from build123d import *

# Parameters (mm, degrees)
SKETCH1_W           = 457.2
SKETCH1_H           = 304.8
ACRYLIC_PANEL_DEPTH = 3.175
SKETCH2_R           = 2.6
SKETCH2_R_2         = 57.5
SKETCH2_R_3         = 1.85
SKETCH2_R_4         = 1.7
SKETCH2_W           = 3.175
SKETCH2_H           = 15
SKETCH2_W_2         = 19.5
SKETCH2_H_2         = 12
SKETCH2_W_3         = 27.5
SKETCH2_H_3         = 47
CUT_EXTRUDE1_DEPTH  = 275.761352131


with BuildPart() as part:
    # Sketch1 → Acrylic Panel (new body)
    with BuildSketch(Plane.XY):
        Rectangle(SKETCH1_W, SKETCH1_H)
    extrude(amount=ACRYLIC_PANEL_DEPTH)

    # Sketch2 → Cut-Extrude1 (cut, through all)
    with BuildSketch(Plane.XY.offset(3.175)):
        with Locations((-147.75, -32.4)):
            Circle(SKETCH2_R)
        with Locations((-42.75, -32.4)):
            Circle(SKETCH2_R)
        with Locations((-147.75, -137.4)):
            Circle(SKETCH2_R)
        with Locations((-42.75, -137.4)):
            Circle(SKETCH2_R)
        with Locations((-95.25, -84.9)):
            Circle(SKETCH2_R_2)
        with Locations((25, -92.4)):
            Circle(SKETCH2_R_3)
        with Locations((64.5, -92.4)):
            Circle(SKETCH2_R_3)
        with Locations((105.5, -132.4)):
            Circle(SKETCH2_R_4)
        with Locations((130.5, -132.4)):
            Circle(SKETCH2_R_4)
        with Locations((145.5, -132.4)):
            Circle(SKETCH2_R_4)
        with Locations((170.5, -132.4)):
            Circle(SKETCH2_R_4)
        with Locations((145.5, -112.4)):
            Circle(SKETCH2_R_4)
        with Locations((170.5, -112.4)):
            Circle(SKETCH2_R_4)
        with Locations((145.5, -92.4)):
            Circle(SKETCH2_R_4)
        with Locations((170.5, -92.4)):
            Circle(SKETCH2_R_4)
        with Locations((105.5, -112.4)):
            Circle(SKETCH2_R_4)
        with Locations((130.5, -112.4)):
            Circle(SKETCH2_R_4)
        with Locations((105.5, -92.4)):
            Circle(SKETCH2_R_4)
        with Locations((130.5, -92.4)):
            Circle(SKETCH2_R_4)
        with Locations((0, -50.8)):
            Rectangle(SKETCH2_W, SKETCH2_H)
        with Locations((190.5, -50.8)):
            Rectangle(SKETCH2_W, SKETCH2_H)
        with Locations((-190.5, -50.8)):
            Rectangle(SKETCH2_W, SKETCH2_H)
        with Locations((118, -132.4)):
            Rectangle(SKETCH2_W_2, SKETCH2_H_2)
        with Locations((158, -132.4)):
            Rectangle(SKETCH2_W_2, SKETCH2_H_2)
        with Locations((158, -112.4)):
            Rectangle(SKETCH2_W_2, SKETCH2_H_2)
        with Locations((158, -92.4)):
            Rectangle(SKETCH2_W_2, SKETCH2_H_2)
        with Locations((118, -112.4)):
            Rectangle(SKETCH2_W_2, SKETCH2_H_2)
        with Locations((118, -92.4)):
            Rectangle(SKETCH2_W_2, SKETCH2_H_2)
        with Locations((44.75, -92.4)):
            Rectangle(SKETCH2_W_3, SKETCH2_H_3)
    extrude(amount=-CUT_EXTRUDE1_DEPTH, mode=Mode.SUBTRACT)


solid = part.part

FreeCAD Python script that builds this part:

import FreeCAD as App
import Part
import Sketcher
from FreeCAD import Vector
Q = App.Units.Quantity

doc = App.newDocument("Part")
body = doc.addObject("PartDesign::Body", "Body")

sketch1 = body.newObject("Sketcher::SketchObject", "Sketch")
sketch1.AttachmentSupport = (doc.getObject("XY_Plane"), [""])
sketch1.MapMode = "FlatFace"
sketch1.addGeometry(Part.LineSegment(Vector(-229, 152, 0), Vector(-229, -152, 0)), False)
sketch1.addGeometry(Part.LineSegment(Vector(-229, -152, 0), Vector(229, -152, 0)), False)
sketch1.addGeometry(Part.LineSegment(Vector(229, -152, 0), Vector(229, 152, 0)), False)
sketch1.addGeometry(Part.LineSegment(Vector(229, 152, 0), Vector(-229, 152, 0)), False)
sketch1.addConstraint(Sketcher.Constraint("Coincident", 0, 2, 1, 1))
sketch1.addConstraint(Sketcher.Constraint("Coincident", 1, 2, 2, 1))
sketch1.addConstraint(Sketcher.Constraint("Coincident", 2, 2, 3, 1))
sketch1.addConstraint(Sketcher.Constraint("Coincident", 3, 2, 0, 1))
sketch1.addConstraint(Sketcher.Constraint("Vertical", 0))
sketch1.addConstraint(Sketcher.Constraint("Horizontal", 1))
sketch1.addConstraint(Sketcher.Constraint("Vertical", 2))
sketch1.addConstraint(Sketcher.Constraint("Horizontal", 3))
sketch1.addConstraint(Sketcher.Constraint("Symmetric", 0, 2, 2, 2, -1, 1))
sketch1.addConstraint(Sketcher.Constraint("DistanceX", 1, 1, 1, 2, Q("457.2 mm")))
sketch1.addConstraint(Sketcher.Constraint("DistanceY", 0, 2, 0, 1, Q("304.8 mm")))
pad1 = body.newObject("PartDesign::Pad", "Pad")
pad1.Profile = sketch1
pad1.Length = 3.175

sketch2 = body.newObject("Sketcher::SketchObject", "Sketch001")
sketch2.AttachmentSupport = (doc.getObject("XY_Plane"), [""])
sketch2.MapMode = "FlatFace"
sketch2.AttachmentOffset = App.Placement(Vector(0, 0, 3.175), App.Rotation())
sketch2.addGeometry(Part.Circle(Vector(-147.8, -32.4, 0), Vector(0, 0, 1), 2.6), False)
sketch2.addGeometry(Part.Circle(Vector(-42.8, -32.4, 0), Vector(0, 0, 1), 2.6), False)
sketch2.addGeometry(Part.Circle(Vector(-147.8, -137.4, 0), Vector(0, 0, 1), 2.6), False)
sketch2.addGeometry(Part.Circle(Vector(-42.8, -137.4, 0), Vector(0, 0, 1), 2.6), False)
sketch2.addGeometry(Part.Circle(Vector(-95.2, -84.9, 0), Vector(0, 0, 1), 57.5), False)
sketch2.addGeometry(Part.Circle(Vector(25, -92.4, 0), Vector(0, 0, 1), 1.9), False)
sketch2.addGeometry(Part.Circle(Vector(64.5, -92.4, 0), Vector(0, 0, 1), 1.9), False)
sketch2.addGeometry(Part.Circle(Vector(105.5, -132.4, 0), Vector(0, 0, 1), 1.7), False)
sketch2.addGeometry(Part.Circle(Vector(130.5, -132.4, 0), Vector(0, 0, 1), 1.7), False)
sketch2.addGeometry(Part.Circle(Vector(145.5, -132.4, 0), Vector(0, 0, 1), 1.7), False)
sketch2.addGeometry(Part.Circle(Vector(170.5, -132.4, 0), Vector(0, 0, 1), 1.7), False)
sketch2.addGeometry(Part.Circle(Vector(145.5, -112.4, 0), Vector(0, 0, 1), 1.7), False)
sketch2.addGeometry(Part.Circle(Vector(170.5, -112.4, 0), Vector(0, 0, 1), 1.7), False)
sketch2.addGeometry(Part.Circle(Vector(145.5, -92.4, 0), Vector(0, 0, 1), 1.7), False)
sketch2.addGeometry(Part.Circle(Vector(170.5, -92.4, 0), Vector(0, 0, 1), 1.7), False)
sketch2.addGeometry(Part.Circle(Vector(105.5, -112.4, 0), Vector(0, 0, 1), 1.7), False)
sketch2.addGeometry(Part.Circle(Vector(130.5, -112.4, 0), Vector(0, 0, 1), 1.7), False)
sketch2.addGeometry(Part.Circle(Vector(105.5, -92.4, 0), Vector(0, 0, 1), 1.7), False)
sketch2.addGeometry(Part.Circle(Vector(130.5, -92.4, 0), Vector(0, 0, 1), 1.7), False)
sketch2.addGeometry(Part.LineSegment(Vector(-1.6, -43.3, 0), Vector(-1.6, -58.3, 0)), False)
sketch2.addGeometry(Part.LineSegment(Vector(-1.6, -58.3, 0), Vector(1.6, -58.3, 0)), False)
sketch2.addGeometry(Part.LineSegment(Vector(1.6, -58.3, 0), Vector(1.6, -43.3, 0)), False)
sketch2.addGeometry(Part.LineSegment(Vector(1.6, -43.3, 0), Vector(-1.6, -43.3, 0)), False)
sketch2.addGeometry(Part.LineSegment(Vector(188.9, -43.3, 0), Vector(188.9, -58.3, 0)), False)
sketch2.addGeometry(Part.LineSegment(Vector(188.9, -58.3, 0), Vector(192.1, -58.3, 0)), False)
sketch2.addGeometry(Part.LineSegment(Vector(192.1, -58.3, 0), Vector(192.1, -43.3, 0)), False)
sketch2.addGeometry(Part.LineSegment(Vector(192.1, -43.3, 0), Vector(188.9, -43.3, 0)), False)
sketch2.addGeometry(Part.LineSegment(Vector(-192.1, -43.3, 0), Vector(-192.1, -58.3, 0)), False)
sketch2.addGeometry(Part.LineSegment(Vector(-192.1, -58.3, 0), Vector(-188.9, -58.3, 0)), False)
sketch2.addGeometry(Part.LineSegment(Vector(-188.9, -58.3, 0), Vector(-188.9, -43.3, 0)), False)
sketch2.addGeometry(Part.LineSegment(Vector(-188.9, -43.3, 0), Vector(-192.1, -43.3, 0)), False)
sketch2.addGeometry(Part.LineSegment(Vector(108.2, -126.4, 0), Vector(108.2, -138.4, 0)), False)
sketch2.addGeometry(Part.LineSegment(Vector(108.2, -138.4, 0), Vector(127.8, -138.4, 0)), False)
sketch2.addGeometry(Part.LineSegment(Vector(127.8, -138.4, 0), Vector(127.8, -126.4, 0)), False)
sketch2.addGeometry(Part.LineSegment(Vector(127.8, -126.4, 0), Vector(108.2, -126.4, 0)), False)
sketch2.addGeometry(Part.LineSegment(Vector(148.2, -126.4, 0), Vector(148.2, -138.4, 0)), False)
sketch2.addGeometry(Part.LineSegment(Vector(148.2, -138.4, 0), Vector(167.8, -138.4, 0)), False)
sketch2.addGeometry(Part.LineSegment(Vector(167.8, -138.4, 0), Vector(167.8, -126.4, 0)), False)
sketch2.addGeometry(Part.LineSegment(Vector(167.8, -126.4, 0), Vector(148.2, -126.4, 0)), False)
sketch2.addGeometry(Part.LineSegment(Vector(148.2, -106.4, 0), Vector(148.2, -118.4, 0)), False)
sketch2.addGeometry(Part.LineSegment(Vector(148.2, -118.4, 0), Vector(167.8, -118.4, 0)), False)
sketch2.addGeometry(Part.LineSegment(Vector(167.8, -118.4, 0), Vector(167.8, -106.4, 0)), False)
sketch2.addGeometry(Part.LineSegment(Vector(167.8, -106.4, 0), Vector(148.2, -106.4, 0)), False)
sketch2.addGeometry(Part.LineSegment(Vector(148.2, -86.4, 0), Vector(148.2, -98.4, 0)), False)
sketch2.addGeometry(Part.LineSegment(Vector(148.2, -98.4, 0), Vector(167.8, -98.4, 0)), False)
sketch2.addGeometry(Part.LineSegment(Vector(167.8, -98.4, 0), Vector(167.8, -86.4, 0)), False)
sketch2.addGeometry(Part.LineSegment(Vector(167.8, -86.4, 0), Vector(148.2, -86.4, 0)), False)
sketch2.addGeometry(Part.LineSegment(Vector(108.2, -106.4, 0), Vector(108.2, -118.4, 0)), False)
sketch2.addGeometry(Part.LineSegment(Vector(108.2, -118.4, 0), Vector(127.8, -118.4, 0)), False)
sketch2.addGeometry(Part.LineSegment(Vector(127.8, -118.4, 0), Vector(127.8, -106.4, 0)), False)
sketch2.addGeometry(Part.LineSegment(Vector(127.8, -106.4, 0), Vector(108.2, -106.4, 0)), False)
sketch2.addGeometry(Part.LineSegment(Vector(108.2, -86.4, 0), Vector(108.2, -98.4, 0)), False)
sketch2.addGeometry(Part.LineSegment(Vector(108.2, -98.4, 0), Vector(127.8, -98.4, 0)), False)
sketch2.addGeometry(Part.LineSegment(Vector(127.8, -98.4, 0), Vector(127.8, -86.4, 0)), False)
sketch2.addGeometry(Part.LineSegment(Vector(127.8, -86.4, 0), Vector(108.2, -86.4, 0)), False)
sketch2.addGeometry(Part.LineSegment(Vector(31, -68.9, 0), Vector(31, -115.9, 0)), False)
sketch2.addGeometry(Part.LineSegment(Vector(31, -115.9, 0), Vector(58.5, -115.9, 0)), False)
sketch2.addGeometry(Part.LineSegment(Vector(58.5, -115.9, 0), Vector(58.5, -68.9, 0)), False)
sketch2.addGeometry(Part.LineSegment(Vector(58.5, -68.9, 0), Vector(31, -68.9, 0)), False)
sketch2.addConstraint(Sketcher.Constraint("Coincident", 19, 2, 20, 1))
sketch2.addConstraint(Sketcher.Constraint("Coincident", 20, 2, 21, 1))
sketch2.addConstraint(Sketcher.Constraint("Coincident", 21, 2, 22, 1))
sketch2.addConstraint(Sketcher.Constraint("Coincident", 22, 2, 19, 1))
sketch2.addConstraint(Sketcher.Constraint("Coincident", 23, 2, 24, 1))
sketch2.addConstraint(Sketcher.Constraint("Coincident", 24, 2, 25, 1))
sketch2.addConstraint(Sketcher.Constraint("Coincident", 25, 2, 26, 1))
sketch2.addConstraint(Sketcher.Constraint("Coincident", 26, 2, 23, 1))
sketch2.addConstraint(Sketcher.Constraint("Coincident", 27, 2, 28, 1))
sketch2.addConstraint(Sketcher.Constraint("Coincident", 28, 2, 29, 1))
sketch2.addConstraint(Sketcher.Constraint("Coincident", 29, 2, 30, 1))
sketch2.addConstraint(Sketcher.Constraint("Coincident", 30, 2, 27, 1))
sketch2.addConstraint(Sketcher.Constraint("Coincident", 31, 2, 32, 1))
sketch2.addConstraint(Sketcher.Constraint("Coincident", 32, 2, 33, 1))
sketch2.addConstraint(Sketcher.Constraint("Coincident", 33, 2, 34, 1))
sketch2.addConstraint(Sketcher.Constraint("Coincident", 34, 2, 31, 1))
sketch2.addConstraint(Sketcher.Constraint("Coincident", 35, 2, 36, 1))
sketch2.addConstraint(Sketcher.Constraint("Coincident", 36, 2, 37, 1))
sketch2.addConstraint(Sketcher.Constraint("Coincident", 37, 2, 38, 1))
sketch2.addConstraint(Sketcher.Constraint("Coincident", 38, 2, 35, 1))
sketch2.addConstraint(Sketcher.Constraint("Coincident", 39, 2, 40, 1))
sketch2.addConstraint(Sketcher.Constraint("Coincident", 40, 2, 41, 1))
sketch2.addConstraint(Sketcher.Constraint("Coincident", 41, 2, 42, 1))
sketch2.addConstraint(Sketcher.Constraint("Coincident", 42, 2, 39, 1))
sketch2.addConstraint(Sketcher.Constraint("Coincident", 43, 2, 44, 1))
sketch2.addConstraint(Sketcher.Constraint("Coincident", 44, 2, 45, 1))
sketch2.addConstraint(Sketcher.Constraint("Coincident", 45, 2, 46, 1))
sketch2.addConstraint(Sketcher.Constraint("Coincident", 46, 2, 43, 1))
sketch2.addConstraint(Sketcher.Constraint("Coincident", 47, 2, 48, 1))
sketch2.addConstraint(Sketcher.Constraint("Coincident", 48, 2, 49, 1))
sketch2.addConstraint(Sketcher.Constraint("Coincident", 49, 2, 50, 1))
sketch2.addConstraint(Sketcher.Constraint("Coincident", 50, 2, 47, 1))
sketch2.addConstraint(Sketcher.Constraint("Coincident", 51, 2, 52, 1))
sketch2.addConstraint(Sketcher.Constraint("Coincident", 52, 2, 53, 1))
sketch2.addConstraint(Sketcher.Constraint("Coincident", 53, 2, 54, 1))
sketch2.addConstraint(Sketcher.Constraint("Coincident", 54, 2, 51, 1))
sketch2.addConstraint(Sketcher.Constraint("Coincident", 55, 2, 56, 1))
sketch2.addConstraint(Sketcher.Constraint("Coincident", 56, 2, 57, 1))
sketch2.addConstraint(Sketcher.Constraint("Coincident", 57, 2, 58, 1))
sketch2.addConstraint(Sketcher.Constraint("Coincident", 58, 2, 55, 1))
sketch2.addConstraint(Sketcher.Constraint("Vertical", 19))
sketch2.addConstraint(Sketcher.Constraint("Horizontal", 20))
sketch2.addConstraint(Sketcher.Constraint("Vertical", 21))
sketch2.addConstraint(Sketcher.Constraint("Horizontal", 22))
sketch2.addConstraint(Sketcher.Constraint("Vertical", 23))
sketch2.addConstraint(Sketcher.Constraint("Horizontal", 24))
sketch2.addConstraint(Sketcher.Constraint("Vertical", 25))
sketch2.addConstraint(Sketcher.Constraint("Horizontal", 26))
sketch2.addConstraint(Sketcher.Constraint("Vertical", 27))
sketch2.addConstraint(Sketcher.Constraint("Horizontal", 28))
sketch2.addConstraint(Sketcher.Constraint("Vertical", 29))
sketch2.addConstraint(Sketcher.Constraint("Horizontal", 30))
sketch2.addConstraint(Sketcher.Constraint("Vertical", 31))
sketch2.addConstraint(Sketcher.Constraint("Horizontal", 32))
sketch2.addConstraint(Sketcher.Constraint("Vertical", 33))
sketch2.addConstraint(Sketcher.Constraint("Horizontal", 34))
sketch2.addConstraint(Sketcher.Constraint("Vertical", 35))
sketch2.addConstraint(Sketcher.Constraint("Horizontal", 36))
sketch2.addConstraint(Sketcher.Constraint("Vertical", 37))
sketch2.addConstraint(Sketcher.Constraint("Horizontal", 38))
sketch2.addConstraint(Sketcher.Constraint("Vertical", 39))
sketch2.addConstraint(Sketcher.Constraint("Horizontal", 40))
sketch2.addConstraint(Sketcher.Constraint("Vertical", 41))
sketch2.addConstraint(Sketcher.Constraint("Horizontal", 42))
sketch2.addConstraint(Sketcher.Constraint("Vertical", 43))
sketch2.addConstraint(Sketcher.Constraint("Horizontal", 44))
sketch2.addConstraint(Sketcher.Constraint("Vertical", 45))
sketch2.addConstraint(Sketcher.Constraint("Horizontal", 46))
sketch2.addConstraint(Sketcher.Constraint("Vertical", 47))
sketch2.addConstraint(Sketcher.Constraint("Horizontal", 48))
sketch2.addConstraint(Sketcher.Constraint("Vertical", 49))
sketch2.addConstraint(Sketcher.Constraint("Horizontal", 50))
sketch2.addConstraint(Sketcher.Constraint("Vertical", 51))
sketch2.addConstraint(Sketcher.Constraint("Horizontal", 52))
sketch2.addConstraint(Sketcher.Constraint("Vertical", 53))
sketch2.addConstraint(Sketcher.Constraint("Horizontal", 54))
sketch2.addConstraint(Sketcher.Constraint("Vertical", 55))
sketch2.addConstraint(Sketcher.Constraint("Horizontal", 56))
sketch2.addConstraint(Sketcher.Constraint("Vertical", 57))
sketch2.addConstraint(Sketcher.Constraint("Horizontal", 58))
sketch2.addConstraint(Sketcher.Constraint("Equal", 0, 1))
sketch2.addConstraint(Sketcher.Constraint("Equal", 1, 2))
sketch2.addConstraint(Sketcher.Constraint("Equal", 2, 3))
sketch2.addConstraint(Sketcher.Constraint("Equal", 5, 6))
sketch2.addConstraint(Sketcher.Constraint("Equal", 7, 8))
sketch2.addConstraint(Sketcher.Constraint("Equal", 8, 9))
sketch2.addConstraint(Sketcher.Constraint("Equal", 9, 10))
sketch2.addConstraint(Sketcher.Constraint("Equal", 10, 11))
sketch2.addConstraint(Sketcher.Constraint("Equal", 11, 12))
sketch2.addConstraint(Sketcher.Constraint("Equal", 12, 13))
sketch2.addConstraint(Sketcher.Constraint("Equal", 13, 14))
sketch2.addConstraint(Sketcher.Constraint("Equal", 14, 15))
sketch2.addConstraint(Sketcher.Constraint("Equal", 15, 16))
sketch2.addConstraint(Sketcher.Constraint("Equal", 16, 17))
sketch2.addConstraint(Sketcher.Constraint("Equal", 17, 18))
sketch2.addConstraint(Sketcher.Constraint("Symmetric", 24, 2, 27, 2, -2))
sketch2.addConstraint(Sketcher.Constraint("Symmetric", 26, 2, 29, 2, -2))
sketch2.addConstraint(Sketcher.Constraint("Horizontal", 0, 3, 1, 3))
sketch2.addConstraint(Sketcher.Constraint("Horizontal", 2, 3, 3, 3))
sketch2.addConstraint(Sketcher.Constraint("Horizontal", 5, 3, 6, 3))
sketch2.addConstraint(Sketcher.Constraint("Horizontal", 7, 3, 8, 3))
sketch2.addConstraint(Sketcher.Constraint("Horizontal", 8, 3, 9, 3))
sketch2.addConstraint(Sketcher.Constraint("Horizontal", 9, 3, 10, 3))
sketch2.addConstraint(Sketcher.Constraint("Horizontal", 11, 3, 12, 3))
sketch2.addConstraint(Sketcher.Constraint("Horizontal", 6, 3, 13, 3))
sketch2.addConstraint(Sketcher.Constraint("Horizontal", 13, 3, 14, 3))
sketch2.addConstraint(Sketcher.Constraint("Horizontal", 12, 3, 15, 3))
sketch2.addConstraint(Sketcher.Constraint("Horizontal", 15, 3, 16, 3))
sketch2.addConstraint(Sketcher.Constraint("Horizontal", 14, 3, 17, 3))
sketch2.addConstraint(Sketcher.Constraint("Horizontal", 17, 3, 18, 3))
sketch2.addConstraint(Sketcher.Constraint("Horizontal", 20, 2, 23, 2))
sketch2.addConstraint(Sketcher.Constraint("Horizontal", 22, 2, 25, 2))
sketch2.addConstraint(Sketcher.Constraint("Horizontal", 32, 2, 35, 2))
sketch2.addConstraint(Sketcher.Constraint("Horizontal", 34, 2, 37, 2))
sketch2.addConstraint(Sketcher.Constraint("Horizontal", 40, 2, 47, 2))
sketch2.addConstraint(Sketcher.Constraint("Horizontal", 42, 2, 49, 2))
sketch2.addConstraint(Sketcher.Constraint("Horizontal", 44, 2, 51, 2))
sketch2.addConstraint(Sketcher.Constraint("Horizontal", 46, 2, 53, 2))
sketch2.addConstraint(Sketcher.Constraint("Vertical", 0, 3, 2, 3))
sketch2.addConstraint(Sketcher.Constraint("Vertical", 1, 3, 3, 3))
sketch2.addConstraint(Sketcher.Constraint("Vertical", 9, 3, 11, 3))
sketch2.addConstraint(Sketcher.Constraint("Vertical", 10, 3, 12, 3))
sketch2.addConstraint(Sketcher.Constraint("Vertical", 11, 3, 13, 3))
sketch2.addConstraint(Sketcher.Constraint("Vertical", 12, 3, 14, 3))
sketch2.addConstraint(Sketcher.Constraint("Vertical", 7, 3, 15, 3))
sketch2.addConstraint(Sketcher.Constraint("Vertical", 8, 3, 16, 3))
sketch2.addConstraint(Sketcher.Constraint("Vertical", 15, 3, 17, 3))
sketch2.addConstraint(Sketcher.Constraint("Vertical", 16, 3, 18, 3))
sketch2.addConstraint(Sketcher.Constraint("Vertical", 38, 2, 39, 2))
sketch2.addConstraint(Sketcher.Constraint("Vertical", 37, 2, 40, 2))
sketch2.addConstraint(Sketcher.Constraint("Vertical", 42, 2, 43, 2))
sketch2.addConstraint(Sketcher.Constraint("Vertical", 41, 2, 44, 2))
sketch2.addConstraint(Sketcher.Constraint("Vertical", 34, 2, 47, 2))
sketch2.addConstraint(Sketcher.Constraint("Vertical", 33, 2, 48, 2))
sketch2.addConstraint(Sketcher.Constraint("Vertical", 50, 2, 51, 2))
sketch2.addConstraint(Sketcher.Constraint("Vertical", 49, 2, 52, 2))
sketch2.addConstraint(Sketcher.Constraint("Equal", 22, 24))
sketch2.addConstraint(Sketcher.Constraint("Equal", 34, 36))
sketch2.addConstraint(Sketcher.Constraint("Equal", 37, 39))
sketch2.addConstraint(Sketcher.Constraint("Equal", 41, 43))
sketch2.addConstraint(Sketcher.Constraint("Diameter", 4, Q("115 mm")))
sketch2.addConstraint(Sketcher.Constraint("Diameter", 0, Q("5.2 mm")))
sketch2.addConstraint(Sketcher.Constraint("Diameter", 5, Q("3.7 mm")))
sketch2.addConstraint(Sketcher.Constraint("Diameter", 7, Q("3.4 mm")))
sketch2.addConstraint(Sketcher.Constraint("DistanceY", 19, 2, 19, 1, Q("15 mm")))
sketch2.addConstraint(Sketcher.Constraint("DistanceY", 31, 2, 31, 1, Q("12 mm")))
sketch2.addConstraint(Sketcher.Constraint("DistanceY", 55, 2, 55, 1, Q("47 mm")))
sketch2.addConstraint(Sketcher.Constraint("DistanceX", 32, 1, 32, 2, Q("19.5 mm")))
sketch2.addConstraint(Sketcher.Constraint("DistanceX", 56, 1, 56, 2, Q("27.5 mm")))
sketch2.addConstraint(Sketcher.Constraint("DistanceX", -1, 1, 5, 3, Q("25 mm")))
sketch2.addConstraint(Sketcher.Constraint("DistanceX", -1, 1, 55, 2, Q("31 mm")))
sketch2.addConstraint(Sketcher.Constraint("DistanceX", 0, 3, 1, 3, Q("105 mm")))
sketch2.addConstraint(Sketcher.Constraint("DistanceY", 2, 3, 0, 3, Q("105 mm")))
sketch2.addConstraint(Sketcher.Constraint("DistanceY", 3, 3, 5, 3, Q("45 mm")))
sketch2.addConstraint(Sketcher.Constraint("DistanceX", 6, 3, 7, 3, Q("41 mm")))
sketch2.addConstraint(Sketcher.Constraint("DistanceY", 7, 3, 6, 3, Q("40 mm")))
sketch2.addConstraint(Sketcher.Constraint("DistanceX", 7, 3, 8, 3, Q("25 mm")))
sketch2.addConstraint(Sketcher.Constraint("DistanceX", 8, 3, 9, 3, Q("15 mm")))
sketch2.addConstraint(Sketcher.Constraint("DistanceX", 9, 3, 10, 3, Q("25 mm")))
sketch2.addConstraint(Sketcher.Constraint("DistanceY", 9, 3, 11, 3, Q("20 mm")))
sketch2.addConstraint(Sketcher.Constraint("DistanceY", 31, 2, 7, 3, Q("6 mm")))
sketch2.addConstraint(Sketcher.Constraint("DistanceY", 39, 2, 11, 3, Q("6 mm")))
sketch2.addConstraint(Sketcher.Constraint("DistanceY", 43, 2, 13, 3, Q("6 mm")))
sketch2.addConstraint(Sketcher.Constraint("DistanceX", 56, 2, 6, 3, Q("6 mm")))
sketch2.addConstraint(Sketcher.Constraint("DistanceY", 0, 3, -1, 1, Q("32.4 mm")))
sketch2.addConstraint(Sketcher.Constraint("DistanceY", 4, 3, -1, 1, Q("84.9 mm")))
sketch2.addConstraint(Sketcher.Constraint("DistanceY", 19, 2, -1, 1, Q("58.3 mm")))
sketch2.addConstraint(Sketcher.Constraint("DistanceY", 55, 2, -1, 1, Q("115.9 mm")))
sketch2.addConstraint(Sketcher.Constraint("DistanceX", 0, 3, 4, 3, Q("52.5 mm")))
sketch2.addConstraint(Sketcher.Constraint("DistanceX", 32, 2, 35, 2, Q("20.5 mm")))
sketch2.addConstraint(Sketcher.Constraint("DistanceX", 20, 1, 20, 2, Q("3.175 mm")))
sketch2.addConstraint(Sketcher.Constraint("DistanceX", 0, 3, -1, 1, Q("147.75 mm")))
sketch2.addConstraint(Sketcher.Constraint("DistanceX", -1, 1, 31, 2, Q("108.25 mm")))
sketch2.addConstraint(Sketcher.Constraint("DistanceX", 19, 2, -1, 1, Q("1.5875 mm")))
sketch2.addConstraint(Sketcher.Constraint("DistanceX", -1, 1, 23, 2, Q("188.9125 mm")))
pocket1 = body.newObject("PartDesign::Pocket", "Pocket")
pocket1.Profile = sketch2
pocket1.Type = "ThroughAll"

doc.recompute()
